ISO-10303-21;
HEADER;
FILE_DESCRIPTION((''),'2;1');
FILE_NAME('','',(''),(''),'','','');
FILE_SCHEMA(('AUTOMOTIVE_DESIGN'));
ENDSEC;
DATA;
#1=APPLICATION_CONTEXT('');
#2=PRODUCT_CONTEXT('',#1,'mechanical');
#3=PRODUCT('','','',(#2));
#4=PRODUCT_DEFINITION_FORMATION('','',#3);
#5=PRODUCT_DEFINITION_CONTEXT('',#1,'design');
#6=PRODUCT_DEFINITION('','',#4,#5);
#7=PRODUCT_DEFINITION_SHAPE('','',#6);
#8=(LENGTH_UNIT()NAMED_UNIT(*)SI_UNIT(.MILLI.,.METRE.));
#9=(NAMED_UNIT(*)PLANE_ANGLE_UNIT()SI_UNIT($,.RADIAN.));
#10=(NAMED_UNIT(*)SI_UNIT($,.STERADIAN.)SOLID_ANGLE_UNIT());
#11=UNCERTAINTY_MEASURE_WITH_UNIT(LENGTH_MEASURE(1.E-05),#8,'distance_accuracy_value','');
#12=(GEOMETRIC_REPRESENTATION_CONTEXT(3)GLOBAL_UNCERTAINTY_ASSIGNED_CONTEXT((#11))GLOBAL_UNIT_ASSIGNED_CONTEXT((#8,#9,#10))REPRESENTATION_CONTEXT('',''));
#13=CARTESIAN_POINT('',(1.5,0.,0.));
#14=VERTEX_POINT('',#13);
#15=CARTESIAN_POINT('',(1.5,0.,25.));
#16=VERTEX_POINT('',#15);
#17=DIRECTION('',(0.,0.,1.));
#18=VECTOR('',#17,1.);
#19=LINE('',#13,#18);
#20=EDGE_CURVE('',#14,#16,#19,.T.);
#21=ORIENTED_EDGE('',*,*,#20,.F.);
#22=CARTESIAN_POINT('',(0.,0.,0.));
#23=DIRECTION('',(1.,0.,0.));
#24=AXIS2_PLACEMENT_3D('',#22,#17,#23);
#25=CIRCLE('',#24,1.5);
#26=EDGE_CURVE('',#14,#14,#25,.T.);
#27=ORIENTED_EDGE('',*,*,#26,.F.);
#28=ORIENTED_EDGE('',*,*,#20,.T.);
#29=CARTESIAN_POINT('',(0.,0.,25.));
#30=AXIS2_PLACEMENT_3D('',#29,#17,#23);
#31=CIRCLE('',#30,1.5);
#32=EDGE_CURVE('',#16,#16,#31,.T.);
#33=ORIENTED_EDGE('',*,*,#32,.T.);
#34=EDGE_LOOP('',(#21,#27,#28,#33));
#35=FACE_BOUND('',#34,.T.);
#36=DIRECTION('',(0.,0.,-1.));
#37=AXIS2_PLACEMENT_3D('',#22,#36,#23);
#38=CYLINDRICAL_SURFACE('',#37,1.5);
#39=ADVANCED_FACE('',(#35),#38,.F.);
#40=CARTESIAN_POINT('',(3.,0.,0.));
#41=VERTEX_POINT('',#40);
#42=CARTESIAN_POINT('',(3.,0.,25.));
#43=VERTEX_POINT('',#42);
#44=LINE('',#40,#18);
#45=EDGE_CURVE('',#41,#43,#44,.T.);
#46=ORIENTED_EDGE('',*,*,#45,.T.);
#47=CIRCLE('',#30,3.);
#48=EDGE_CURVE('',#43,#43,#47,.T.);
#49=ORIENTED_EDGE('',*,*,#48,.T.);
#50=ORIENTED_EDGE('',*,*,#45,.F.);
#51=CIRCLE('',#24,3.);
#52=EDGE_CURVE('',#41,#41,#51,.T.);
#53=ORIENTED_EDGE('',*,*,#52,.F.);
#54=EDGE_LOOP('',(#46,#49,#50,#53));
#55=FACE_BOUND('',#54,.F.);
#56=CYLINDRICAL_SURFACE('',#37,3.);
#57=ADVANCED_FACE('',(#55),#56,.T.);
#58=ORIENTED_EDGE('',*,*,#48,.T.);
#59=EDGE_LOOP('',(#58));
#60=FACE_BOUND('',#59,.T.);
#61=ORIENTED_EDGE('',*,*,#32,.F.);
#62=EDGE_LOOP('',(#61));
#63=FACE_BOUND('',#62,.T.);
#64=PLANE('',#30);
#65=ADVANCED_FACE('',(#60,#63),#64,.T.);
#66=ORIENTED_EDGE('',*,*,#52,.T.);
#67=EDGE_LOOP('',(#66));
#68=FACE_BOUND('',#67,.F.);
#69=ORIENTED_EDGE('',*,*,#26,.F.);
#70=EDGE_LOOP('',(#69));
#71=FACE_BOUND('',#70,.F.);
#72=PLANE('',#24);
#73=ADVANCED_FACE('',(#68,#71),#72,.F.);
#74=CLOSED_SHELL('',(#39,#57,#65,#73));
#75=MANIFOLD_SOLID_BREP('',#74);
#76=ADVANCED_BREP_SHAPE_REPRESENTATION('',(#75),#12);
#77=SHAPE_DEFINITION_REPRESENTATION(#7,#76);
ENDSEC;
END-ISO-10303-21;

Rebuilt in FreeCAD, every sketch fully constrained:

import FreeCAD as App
import Part
import Sketcher

doc = App.newDocument("Part")
body = doc.addObject("PartDesign::Body", "Body")

# Sketch on XY plane
sketch1 = doc.addObject("Sketcher::SketchObject", "Sketch")
body.addObject(sketch1)
sketch1.AttachmentSupport = (doc.XY_Plane, [""])
sketch1.MapMode = "FlatFace"
sketch1.addGeometry(Part.Circle(App.Vector(0, 0, 0), App.Vector(0, 0, 1), 3), False)
sketch1.addGeometry(Part.Circle(App.Vector(0, 0, 0), App.Vector(0, 0, 1), 1.5), False)
sketch1.addConstraint(Sketcher.Constraint("Coincident", 0, 3, -1, 1))
sketch1.addConstraint(Sketcher.Constraint("Coincident", 1, 3, -1, 1))
sketch1.addConstraint(Sketcher.Constraint("Diameter", 0, 6.0))
sketch1.addConstraint(Sketcher.Constraint("Diameter", 1, 3.0))
pad1 = doc.addObject("PartDesign::Pad", "Pad")
body.addObject(pad1)
pad1.Profile = sketch1
pad1.Length = 25

doc.recompute()
